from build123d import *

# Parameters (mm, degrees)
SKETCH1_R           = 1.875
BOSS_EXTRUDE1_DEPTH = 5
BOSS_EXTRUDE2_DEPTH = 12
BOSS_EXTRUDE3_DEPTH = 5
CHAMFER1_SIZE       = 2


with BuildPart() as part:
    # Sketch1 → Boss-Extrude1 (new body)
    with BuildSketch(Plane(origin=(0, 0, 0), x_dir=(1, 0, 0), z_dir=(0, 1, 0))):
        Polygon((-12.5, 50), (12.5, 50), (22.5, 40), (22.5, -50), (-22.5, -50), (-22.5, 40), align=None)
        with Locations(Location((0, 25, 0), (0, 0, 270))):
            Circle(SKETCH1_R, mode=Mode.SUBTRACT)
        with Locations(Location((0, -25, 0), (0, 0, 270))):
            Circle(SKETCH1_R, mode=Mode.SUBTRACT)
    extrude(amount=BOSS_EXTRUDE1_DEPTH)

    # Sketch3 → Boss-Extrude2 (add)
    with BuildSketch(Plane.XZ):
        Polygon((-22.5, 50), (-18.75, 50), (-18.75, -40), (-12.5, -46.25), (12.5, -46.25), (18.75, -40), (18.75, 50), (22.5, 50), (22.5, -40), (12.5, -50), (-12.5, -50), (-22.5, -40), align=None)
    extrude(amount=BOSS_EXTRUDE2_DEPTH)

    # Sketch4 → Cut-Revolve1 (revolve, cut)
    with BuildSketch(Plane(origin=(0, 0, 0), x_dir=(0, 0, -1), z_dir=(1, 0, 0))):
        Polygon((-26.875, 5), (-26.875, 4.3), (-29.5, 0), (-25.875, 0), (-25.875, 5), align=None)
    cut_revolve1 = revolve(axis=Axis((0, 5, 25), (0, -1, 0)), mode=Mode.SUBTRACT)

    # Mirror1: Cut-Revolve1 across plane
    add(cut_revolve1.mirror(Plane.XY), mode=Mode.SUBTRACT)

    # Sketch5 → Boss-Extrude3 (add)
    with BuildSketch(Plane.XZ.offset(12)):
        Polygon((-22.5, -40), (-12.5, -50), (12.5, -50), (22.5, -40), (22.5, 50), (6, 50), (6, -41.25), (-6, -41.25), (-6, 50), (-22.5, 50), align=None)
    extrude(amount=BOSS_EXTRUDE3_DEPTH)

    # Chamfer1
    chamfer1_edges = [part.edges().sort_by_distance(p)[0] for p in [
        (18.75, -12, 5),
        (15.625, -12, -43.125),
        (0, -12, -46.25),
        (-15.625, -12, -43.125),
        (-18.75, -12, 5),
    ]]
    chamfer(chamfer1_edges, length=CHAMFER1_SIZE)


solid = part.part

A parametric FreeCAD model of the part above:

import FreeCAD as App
import Part
import Sketcher

V = App.Vector
Q = App.Units.Quantity


def edges_at(feature, points):
    """Names of the edges that pass closest to the given points."""
    edges = feature.Shape.Edges
    near = lambda p: min(range(len(edges)), key=lambda i: edges[i].distToShape(Part.Vertex(*p))[0])
    return sorted({f"Edge{near(p) + 1}" for p in points})

doc = App.newDocument("Part")
body = doc.addObject("PartDesign::Body", "Body")

# Sketch on XZ plane
sketch1 = body.newObject("Sketcher::SketchObject", "Sketch")
sketch1.AttachmentSupport = (doc.getObject("XZ_Plane"), [""])
sketch1.MapMode = "FlatFace"
sketch1.addGeometry([
    Part.LineSegment(V(12.5, -50, 0), V(-12.5, -50, 0)),  # 0
    Part.LineSegment(V(-12.5, -50, 0), V(-22.5, -40, 0)),  # 1
    Part.LineSegment(V(-22.5, -40, 0), V(-22.5, 50, 0)),  # 2
    Part.LineSegment(V(-22.5, 50, 0), V(22.5, 50, 0)),  # 3
    Part.LineSegment(V(22.5, 50, 0), V(22.5, -40, 0)),  # 4
    Part.LineSegment(V(22.5, -40, 0), V(12.5, -50, 0)),  # 5
    Part.Circle(V(0, 25, 0), V(0, 0, 1), 1.875),  # 6
    Part.Circle(V(0, -25, 0), V(0, 0, 1), 1.875),  # 7
], False)
sketch1.addConstraint([
    Sketcher.Constraint("Coincident", 0, 2, 1, 1),
    Sketcher.Constraint("Coincident", 1, 2, 2, 1),
    Sketcher.Constraint("Coincident", 2, 2, 3, 1),
    Sketcher.Constraint("Coincident", 3, 2, 4, 1),
    Sketcher.Constraint("Coincident", 4, 2, 5, 1),
    Sketcher.Constraint("Coincident", 5, 2, 0, 1),
    Sketcher.Constraint("Horizontal", 0),
    Sketcher.Constraint("Vertical", 2),
    Sketcher.Constraint("Horizontal", 3),
    Sketcher.Constraint("Vertical", 4),
    Sketcher.Constraint("Equal", 6, 7),
    Sketcher.Constraint("Symmetric", 6, 3, 7, 3, -1, 1),
    Sketcher.Constraint("Symmetric", 1, 2, 4, 2, -2),
    Sketcher.Constraint("PointOnObject", 6, 3, -2),
    Sketcher.Constraint("Perpendicular", 1, 5),
    Sketcher.Constraint("Equal", 1, 5),
    Sketcher.Constraint("Diameter", 6, Q("3.75 mm")),
    Sketcher.Constraint("DistanceX", 0, 2, 0, 1, Q("25 mm")),
    Sketcher.Constraint("DistanceX", 3, 1, 3, 2, Q("45 mm")),
    Sketcher.Constraint("DistanceY", 2, 1, 2, 2, Q("90 mm")),
    Sketcher.Constraint("DistanceY", -1, 1, 6, 3, Q("25 mm")),
    Sketcher.Constraint("DistanceY", 0, 2, -1, 1, Q("50 mm")),
])
pad1 = body.newObject("PartDesign::Pad", "Pad")
pad1.Profile = sketch1
pad1.Length = 5
pad1.Reversed = True

# Sketch on XZ plane
sketch2 = body.newObject("Sketcher::SketchObject", "Sketch001")
sketch2.AttachmentSupport = (doc.getObject("XZ_Plane"), [""])
sketch2.MapMode = "FlatFace"
sketch2.addGeometry([
    Part.LineSegment(V(-18.75, 50, 0), V(-22.5, 50, 0)),  # 0
    Part.LineSegment(V(-22.5, 50, 0), V(-22.5, -40, 0)),  # 1
    Part.LineSegment(V(-22.5, -40, 0), V(-12.5, -50, 0)),  # 2
    Part.LineSegment(V(-12.5, -50, 0), V(12.5, -50, 0)),  # 3
    Part.LineSegment(V(12.5, -50, 0), V(22.5, -40, 0)),  # 4
    Part.LineSegment(V(22.5, -40, 0), V(22.5, 50, 0)),  # 5
    Part.LineSegment(V(22.5, 50, 0), V(18.75, 50, 0)),  # 6
    Part.LineSegment(V(18.75, 50, 0), V(18.75, -40, 0)),  # 7
    Part.LineSegment(V(18.75, -40, 0), V(12.5, -46.25, 0)),  # 8
    Part.LineSegment(V(12.5, -46.25, 0), V(-12.5, -46.25, 0)),  # 9
    Part.LineSegment(V(-12.5, -46.25, 0), V(-18.75, -40, 0)),  # 10
    Part.LineSegment(V(-18.75, -40, 0), V(-18.75, 50, 0)),  # 11
], False)
sketch2.addConstraint([
    Sketcher.Constraint("Coincident", 0, 2, 1, 1),
    Sketcher.Constraint("Coincident", 1, 2, 2, 1),
    Sketcher.Constraint("Coincident", 2, 2, 3, 1),
    Sketcher.Constraint("Coincident", 3, 2, 4, 1),
    Sketcher.Constraint("Coincident", 4, 2, 5, 1),
    Sketcher.Constraint("Coincident", 5, 2, 6, 1),
    Sketcher.Constraint("Coincident", 6, 2, 7, 1),
    Sketcher.Constraint("Coincident", 7, 2, 8, 1),
    Sketcher.Constraint("Coincident", 8, 2, 9, 1),
    Sketcher.Constraint("Coincident", 9, 2, 10, 1),
    Sketcher.Constraint("Coincident", 10, 2, 11, 1),
    Sketcher.Constraint("Coincident", 11, 2, 0, 1),
    Sketcher.Constraint("Horizontal", 0),
    Sketcher.Constraint("Vertical", 1),
    Sketcher.Constraint("Horizontal", 3),
    Sketcher.Constraint("Vertical", 5),
    Sketcher.Constraint("Horizontal", 6),
    Sketcher.Constraint("Vertical", 7),
    Sketcher.Constraint("Horizontal", 9),
    Sketcher.Constraint("Vertical", 11),
    Sketcher.Constraint("Symmetric", 1, 2, 4, 2, -2),
    Sketcher.Constraint("Symmetric", 7, 2, 10, 2, -2),
    Sketcher.Constraint("Perpendicular", 2, 4),
    Sketcher.Constraint("Parallel", 4, 8),
    Sketcher.Constraint("Perpendicular", 8, 10),
    Sketcher.Constraint("Horizontal", 0, 2, 5, 2),
    Sketcher.Constraint("Horizontal", 4, 2, 7, 2),
    Sketcher.Constraint("Vertical", 3, 2, 8, 2),
    Sketcher.Constraint("Vertical", 2, 2, 9, 2),
    Sketcher.Constraint("DistanceX", 3, 1, 3, 2, Q("25 mm")),
    Sketcher.Constraint("DistanceY", 1, 2, 1, 1, Q("90 mm")),
    Sketcher.Constraint("DistanceY", -1, 1, 0, 2, Q("50 mm")),
    Sketcher.Constraint("DistanceY", 2, 2, -1, 1, Q("50 mm")),
    Sketcher.Constraint("DistanceX", 0, 2, 0, 1, Q("3.75 mm")),
])
pad2 = body.newObject("PartDesign::Pad", "Pad001")
pad2.Profile = sketch2
pad2.Length = 12

# Sketch on YZ plane
sketch3 = body.newObject("Sketcher::SketchObject", "Sketch002")
sketch3.AttachmentSupport = (doc.getObject("YZ_Plane"), [""])
sketch3.MapMode = "FlatFace"
sketch3.addGeometry([
    Part.LineSegment(V(5, 26.875, 0), V(4.3, 26.875, 0)),  # 0
    Part.LineSegment(V(4.3, 26.875, 0), V(0, 29.5, 0)),  # 1
    Part.LineSegment(V(0, 29.5, 0), V(0, 25.875, 0)),  # 2
    Part.LineSegment(V(0, 25.875, 0), V(5, 25.875, 0)),  # 3
    Part.LineSegment(V(5, 25.875, 0), V(5, 26.875, 0)),  # 4
], False)
sketch3.addGeometry(Part.LineSegment(V(5, 25, 0), V(0, 25, 0)), True)  # axis
sketch3.addConstraint([
    Sketcher.Constraint("Coincident", 0, 2, 1, 1),
    Sketcher.Constraint("Coincident", 1, 2, 2, 1),
    Sketcher.Constraint("Coincident", 2, 2, 3, 1),
    Sketcher.Constraint("Coincident", 3, 2, 4, 1),
    Sketcher.Constraint("Coincident", 4, 2, 0, 1),
    Sketcher.Constraint("Horizontal", 0),
    Sketcher.Constraint("Vertical", 2),
    Sketcher.Constraint("Horizontal", 3),
    Sketcher.Constraint("Vertical", 4),
    Sketcher.Constraint("Horizontal", 5),
    Sketcher.Constraint("PointOnObject", 1, 2, -2),
    Sketcher.Constraint("PointOnObject", 5, 2, -2),
    Sketcher.Constraint("Vertical", 4, 2, 5, 1),
    Sketcher.Constraint("DistanceX", 3, 1, 3, 2, Q("5 mm")),
    Sketcher.Constraint("DistanceY", 4, 1, 4, 2, Q("1 mm")),
    Sketcher.Constraint("DistanceX", 0, 2, 0, 1, Q("0.7 mm")),
    Sketcher.Constraint("DistanceY", -1, 1, 5, 1, Q("25 mm")),
    Sketcher.Constraint("DistanceY", -1, 1, 1, 2, Q("29.5 mm")),
    Sketcher.Constraint("DistanceY", 2, 2, 2, 1, Q("3.625 mm")),
])
groove = body.newObject("PartDesign::Groove", "Groove")
groove.Profile = sketch3
groove.ReferenceAxis = (sketch3, ["Axis0"])
groove.Angle = 360
doc.recompute()

mirrored = body.newObject("PartDesign::Mirrored", "Mirrored")
mirrored.Originals = [groove]
mirrored.MirrorPlane = (doc.getObject("XY_Plane"), [""])
body.Tip = mirrored

# Sketch on XZ plane
sketch4 = body.newObject("Sketcher::SketchObject", "Sketch003")
sketch4.AttachmentSupport = (doc.getObject("XZ_Plane"), [""])
sketch4.MapMode = "FlatFace"
sketch4.AttachmentOffset = App.Placement(V(0, 0, 12), App.Rotation())
sketch4.addGeometry([
    Part.LineSegment(V(-22.5, -40, 0), V(-12.5, -50, 0)),  # 0
    Part.LineSegment(V(-12.5, -50, 0), V(12.5, -50, 0)),  # 1
    Part.LineSegment(V(12.5, -50, 0), V(22.5, -40, 0)),  # 2
    Part.LineSegment(V(22.5, -40, 0), V(22.5, 50, 0)),  # 3
    Part.LineSegment(V(22.5, 50, 0), V(6, 50, 0)),  # 4
    Part.LineSegment(V(6, 50, 0), V(6, -41.25, 0)),  # 5
    Part.LineSegment(V(6, -41.25, 0), V(-6, -41.25, 0)),  # 6
    Part.LineSegment(V(-6, -41.25, 0), V(-6, 50, 0)),  # 7
    Part.LineSegment(V(-6, 50, 0), V(-22.5, 50, 0)),  # 8
    Part.LineSegment(V(-22.5, 50, 0), V(-22.5, -40, 0)),  # 9
], False)
sketch4.addConstraint([
    Sketcher.Constraint("Coincident", 0, 2, 1, 1),
    Sketcher.Constraint("Coincident", 1, 2, 2, 1),
    Sketcher.Constraint("Coincident", 2, 2, 3, 1),
    Sketcher.Constraint("Coincident", 3, 2, 4, 1),
    Sketcher.Constraint("Coincident", 4, 2, 5, 1),
    Sketcher.Constraint("Coincident", 5, 2, 6, 1),
    Sketcher.Constraint("Coincident", 6, 2, 7, 1),
    Sketcher.Constraint("Coincident", 7, 2, 8, 1),
    Sketcher.Constraint("Coincident", 8, 2, 9, 1),
    Sketcher.Constraint("Coincident", 9, 2, 0, 1),
    Sketcher.Constraint("Horizontal", 1),
    Sketcher.Constraint("Vertical", 3),
    Sketcher.Constraint("Horizontal", 4),
    Sketcher.Constraint("Vertical", 5),
    Sketcher.Constraint("Horizontal", 6),
    Sketcher.Constraint("Vertical", 7),
    Sketcher.Constraint("Horizontal", 8),
    Sketcher.Constraint("Vertical", 9),
    Sketcher.Constraint("Symmetric", 4, 2, 7, 2, -2),
    Sketcher.Constraint("Symmetric", 2, 2, 9, 2, -2),
    Sketcher.Constraint("Perpendicular", 0, 2),
    Sketcher.Constraint("Equal", 0, 2),
    Sketcher.Constraint("DistanceX", 1, 1, 1, 2, Q("25 mm")),
    Sketcher.Constraint("DistanceX", 6, 2, 6, 1, Q("12 mm")),
    Sketcher.Constraint("DistanceY", 3, 1, 3, 2, Q("90 mm")),
    Sketcher.Constraint("DistanceX", 4, 2, 4, 1, Q("16.5 mm")),
    Sketcher.Constraint("DistanceY", 0, 2, -1, 1, Q("50 mm")),
    Sketcher.Constraint("DistanceY", 5, 2, 5, 1, Q("91.25 mm")),
])
pad3 = body.newObject("PartDesign::Pad", "Pad002")
pad3.Profile = sketch4
pad3.Length = 5
doc.recompute()

chamfer = body.newObject("PartDesign::Chamfer", "Chamfer")
chamfer.Base = (pad3, edges_at(pad3, [
    (18.75, -12, 5),
    (15.625, -12, -43.125),
    (0, -12, -46.25),
    (-15.625, -12, -43.125),
    (-18.75, -12, 5),
]))
chamfer.Size = 2

doc.recompute()
